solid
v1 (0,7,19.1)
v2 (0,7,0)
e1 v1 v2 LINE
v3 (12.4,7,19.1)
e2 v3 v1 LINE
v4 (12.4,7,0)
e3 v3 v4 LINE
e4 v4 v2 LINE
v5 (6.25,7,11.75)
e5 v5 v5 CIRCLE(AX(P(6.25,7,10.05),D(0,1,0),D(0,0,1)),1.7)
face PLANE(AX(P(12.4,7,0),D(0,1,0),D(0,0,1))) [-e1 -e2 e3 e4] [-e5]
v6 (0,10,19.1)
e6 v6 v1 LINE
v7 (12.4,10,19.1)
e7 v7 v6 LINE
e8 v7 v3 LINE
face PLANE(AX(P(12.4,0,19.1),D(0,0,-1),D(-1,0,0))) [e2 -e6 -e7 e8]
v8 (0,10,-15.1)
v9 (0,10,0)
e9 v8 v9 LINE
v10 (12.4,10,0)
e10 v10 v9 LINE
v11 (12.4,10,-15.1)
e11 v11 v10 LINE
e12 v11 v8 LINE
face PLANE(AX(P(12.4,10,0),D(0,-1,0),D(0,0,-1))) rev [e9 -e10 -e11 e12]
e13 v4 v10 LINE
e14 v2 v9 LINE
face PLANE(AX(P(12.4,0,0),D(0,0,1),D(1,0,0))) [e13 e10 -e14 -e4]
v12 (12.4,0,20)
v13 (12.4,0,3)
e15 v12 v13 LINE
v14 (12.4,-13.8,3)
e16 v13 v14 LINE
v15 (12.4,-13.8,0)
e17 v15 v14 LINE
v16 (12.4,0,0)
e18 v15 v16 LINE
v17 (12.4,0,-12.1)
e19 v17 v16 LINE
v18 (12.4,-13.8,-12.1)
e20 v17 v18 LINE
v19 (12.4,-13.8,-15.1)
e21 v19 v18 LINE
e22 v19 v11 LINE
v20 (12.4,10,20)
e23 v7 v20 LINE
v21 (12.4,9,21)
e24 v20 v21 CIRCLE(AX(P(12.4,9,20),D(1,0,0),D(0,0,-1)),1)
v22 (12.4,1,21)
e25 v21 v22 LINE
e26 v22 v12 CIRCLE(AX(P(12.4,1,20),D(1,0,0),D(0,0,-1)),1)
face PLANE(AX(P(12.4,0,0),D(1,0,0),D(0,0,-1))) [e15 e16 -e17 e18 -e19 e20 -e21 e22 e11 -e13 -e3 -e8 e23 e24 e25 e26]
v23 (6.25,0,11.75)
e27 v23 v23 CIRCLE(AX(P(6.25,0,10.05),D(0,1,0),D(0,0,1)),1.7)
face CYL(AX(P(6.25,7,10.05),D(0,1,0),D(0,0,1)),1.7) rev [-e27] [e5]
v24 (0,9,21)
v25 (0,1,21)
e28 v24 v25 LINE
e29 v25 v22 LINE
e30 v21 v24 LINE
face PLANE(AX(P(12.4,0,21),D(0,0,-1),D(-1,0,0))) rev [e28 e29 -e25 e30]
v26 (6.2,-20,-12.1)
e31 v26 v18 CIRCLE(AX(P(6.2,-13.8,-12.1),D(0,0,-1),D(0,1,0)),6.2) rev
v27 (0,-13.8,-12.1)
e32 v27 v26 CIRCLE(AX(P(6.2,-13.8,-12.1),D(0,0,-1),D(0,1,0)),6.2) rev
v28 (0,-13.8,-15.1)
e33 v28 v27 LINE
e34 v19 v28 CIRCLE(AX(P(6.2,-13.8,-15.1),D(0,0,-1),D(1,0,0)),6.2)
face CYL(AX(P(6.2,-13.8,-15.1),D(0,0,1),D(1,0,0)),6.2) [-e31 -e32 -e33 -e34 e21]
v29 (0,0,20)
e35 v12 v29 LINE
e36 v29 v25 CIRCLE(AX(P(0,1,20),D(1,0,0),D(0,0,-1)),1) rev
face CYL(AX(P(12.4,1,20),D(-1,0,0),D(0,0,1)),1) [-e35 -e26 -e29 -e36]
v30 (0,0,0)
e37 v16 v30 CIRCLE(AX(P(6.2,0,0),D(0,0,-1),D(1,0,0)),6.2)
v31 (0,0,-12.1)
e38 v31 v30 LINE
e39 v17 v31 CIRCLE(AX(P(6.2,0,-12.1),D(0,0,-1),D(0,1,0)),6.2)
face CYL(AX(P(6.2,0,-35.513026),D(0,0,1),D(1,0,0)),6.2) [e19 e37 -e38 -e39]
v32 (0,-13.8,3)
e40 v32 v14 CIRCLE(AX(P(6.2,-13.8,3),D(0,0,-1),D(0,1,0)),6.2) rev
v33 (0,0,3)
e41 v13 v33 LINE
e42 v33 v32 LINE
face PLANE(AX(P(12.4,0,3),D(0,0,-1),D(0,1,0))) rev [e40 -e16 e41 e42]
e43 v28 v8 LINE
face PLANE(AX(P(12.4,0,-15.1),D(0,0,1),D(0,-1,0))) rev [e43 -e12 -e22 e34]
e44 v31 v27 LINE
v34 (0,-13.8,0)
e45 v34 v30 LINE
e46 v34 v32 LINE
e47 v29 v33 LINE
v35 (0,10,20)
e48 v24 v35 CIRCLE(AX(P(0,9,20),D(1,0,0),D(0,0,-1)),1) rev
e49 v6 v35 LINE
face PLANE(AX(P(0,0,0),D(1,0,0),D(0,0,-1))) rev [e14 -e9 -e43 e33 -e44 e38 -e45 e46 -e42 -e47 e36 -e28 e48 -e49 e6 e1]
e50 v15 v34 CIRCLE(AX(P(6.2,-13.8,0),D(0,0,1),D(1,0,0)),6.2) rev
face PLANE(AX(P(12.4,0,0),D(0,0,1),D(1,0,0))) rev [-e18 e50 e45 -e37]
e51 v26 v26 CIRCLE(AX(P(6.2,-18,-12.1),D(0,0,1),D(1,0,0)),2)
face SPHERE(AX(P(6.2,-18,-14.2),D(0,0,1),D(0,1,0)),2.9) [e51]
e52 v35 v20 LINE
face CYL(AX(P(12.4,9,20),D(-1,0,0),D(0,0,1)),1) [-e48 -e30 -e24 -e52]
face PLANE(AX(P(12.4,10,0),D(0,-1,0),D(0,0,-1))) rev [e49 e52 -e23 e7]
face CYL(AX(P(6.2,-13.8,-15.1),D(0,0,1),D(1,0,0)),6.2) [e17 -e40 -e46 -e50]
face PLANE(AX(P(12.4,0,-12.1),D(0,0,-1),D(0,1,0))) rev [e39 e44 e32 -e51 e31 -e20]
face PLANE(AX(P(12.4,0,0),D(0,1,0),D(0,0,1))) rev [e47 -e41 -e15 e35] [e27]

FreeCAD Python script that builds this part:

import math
import FreeCAD as App
import Part
import Sketcher

V = App.Vector
Q = App.Units.Quantity


def edges_at(feature, points):
    """Names of the edges that pass closest to the given points."""
    edges = feature.Shape.Edges
    near = lambda p: min(range(len(edges)), key=lambda i: edges[i].distToShape(Part.Vertex(*p))[0])
    return sorted({f"Edge{near(p) + 1}" for p in points})

doc = App.newDocument("Part")
body = doc.addObject("PartDesign::Body", "Body")

sketch1 = body.newObject("Sketcher::SketchObject", "Sketch")
sketch1.AttachmentSupport = (doc.getObject("YZ_Plane"), [""])
sketch1.MapMode = "FlatFace"
sketch1.addGeometry(Part.LineSegment(V(7, 19.1, 0), V(10, 19.1, 0)), False)
sketch1.addGeometry(Part.LineSegment(V(10, 19.1, 0), V(10, 21, 0)), False)
sketch1.addGeometry(Part.LineSegment(V(10, 21, 0), V(0, 21, 0)), False)
sketch1.addGeometry(Part.LineSegment(V(0, 21, 0), V(0, 3, 0)), False)
sketch1.addGeometry(Part.LineSegment(V(0, 3, 0), V(-20, 3, 0)), False)
sketch1.addGeometry(Part.LineSegment(V(-20, 3, 0), V(-20, 0, 0)), False)
sketch1.addGeometry(Part.LineSegment(V(-20, 0, 0), V(-8, 0, 0)), False)
sketch1.addGeometry(Part.LineSegment(V(-8, 0, 0), V(-8, -12.1, 0)), False)
sketch1.addGeometry(Part.LineSegment(V(-8, -12.1, 0), V(-20, -12.1, 0)), False)
sketch1.addGeometry(Part.LineSegment(V(-20, -12.1, 0), V(-20, -15.1, 0)), False)
sketch1.addGeometry(Part.LineSegment(V(-20, -15.1, 0), V(10, -15.1, 0)), False)
sketch1.addGeometry(Part.LineSegment(V(10, -15.1, 0), V(10, 0, 0)), False)
sketch1.addGeometry(Part.LineSegment(V(10, 0, 0), V(7, 0, 0)), False)
sketch1.addGeometry(Part.LineSegment(V(7, 0, 0), V(7, 19.1, 0)), False)
sketch1.addConstraint(Sketcher.Constraint("Coincident", 0, 2, 1, 1))
sketch1.addConstraint(Sketcher.Constraint("Coincident", 1, 2, 2, 1))
sketch1.addConstraint(Sketcher.Constraint("Coincident", 2, 2, 3, 1))
sketch1.addConstraint(Sketcher.Constraint("Coincident", 3, 2, 4, 1))
sketch1.addConstraint(Sketcher.Constraint("Coincident", 4, 2, 5, 1))
sketch1.addConstraint(Sketcher.Constraint("Coincident", 5, 2, 6, 1))
sketch1.addConstraint(Sketcher.Constraint("Coincident", 6, 2, 7, 1))
sketch1.addConstraint(Sketcher.Constraint("Coincident", 7, 2, 8, 1))
sketch1.addConstraint(Sketcher.Constraint("Coincident", 8, 2, 9, 1))
sketch1.addConstraint(Sketcher.Constraint("Coincident", 9, 2, 10, 1))
sketch1.addConstraint(Sketcher.Constraint("Coincident", 10, 2, 11, 1))
sketch1.addConstraint(Sketcher.Constraint("Coincident", 11, 2, 12, 1))
sketch1.addConstraint(Sketcher.Constraint("Coincident", 12, 2, 13, 1))
sketch1.addConstraint(Sketcher.Constraint("Coincident", 13, 2, 0, 1))
sketch1.addConstraint(Sketcher.Constraint("Horizontal", 0))
sketch1.addConstraint(Sketcher.Constraint("Vertical", 1))
sketch1.addConstraint(Sketcher.Constraint("Horizontal", 2))
sketch1.addConstraint(Sketcher.Constraint("Vertical", 3))
sketch1.addConstraint(Sketcher.Constraint("Horizontal", 4))
sketch1.addConstraint(Sketcher.Constraint("Vertical", 5))
sketch1.addConstraint(Sketcher.Constraint("Horizontal", 6))
sketch1.addConstraint(Sketcher.Constraint("Vertical", 7))
sketch1.addConstraint(Sketcher.Constraint("Horizontal", 8))
sketch1.addConstraint(Sketcher.Constraint("Vertical", 9))
sketch1.addConstraint(Sketcher.Constraint("Horizontal", 10))
sketch1.addConstraint(Sketcher.Constraint("Vertical", 11))
sketch1.addConstraint(Sketcher.Constraint("Horizontal", 12))
sketch1.addConstraint(Sketcher.Constraint("Vertical", 13))
sketch1.addConstraint(Sketcher.Constraint("PointOnObject", 2, 2, -2))
sketch1.addConstraint(Sketcher.Constraint("PointOnObject", 5, 2, -1))
sketch1.addConstraint(Sketcher.Constraint("PointOnObject", 11, 2, -1))
sketch1.addConstraint(Sketcher.Constraint("Vertical", 5, 2, 8, 2))
sketch1.addConstraint(Sketcher.Constraint("Vertical", 1, 2, 10, 2))
sketch1.addConstraint(Sketcher.Constraint("Equal", 12, 5))
sketch1.addConstraint(Sketcher.Constraint("Equal", 5, 9))
sketch1.addConstraint(Sketcher.Constraint("DistanceX", 0, 1, 0, 2, Q("3 mm")))
sketch1.addConstraint(Sketcher.Constraint("DistanceX", 2, 2, 2, 1, Q("10 mm")))
sketch1.addConstraint(Sketcher.Constraint("DistanceX", 4, 2, 4, 1, Q("20 mm")))
sketch1.addConstraint(Sketcher.Constraint("DistanceX", 6, 1, 6, 2, Q("12 mm")))
sketch1.addConstraint(Sketcher.Constraint("DistanceY", 3, 2, 3, 1, Q("18 mm")))
sketch1.addConstraint(Sketcher.Constraint("DistanceY", 1, 1, 1, 2, Q("1.9 mm")))
sketch1.addConstraint(Sketcher.Constraint("DistanceY", 7, 2, 7, 1, Q("12.1 mm")))
pad1 = body.newObject("PartDesign::Pad", "Pad")
pad1.Profile = sketch1
pad1.Length = 12.4

sketch2 = body.newObject("Sketcher::SketchObject", "Sketch001")
sketch2.AttachmentSupport = (doc.getObject("XY_Plane"), [""])
sketch2.MapMode = "FlatFace"
sketch2.addGeometry(Part.LineSegment(V(0, 0, 0), V(-4.3, 0, 0)), False)
sketch2.addGeometry(Part.LineSegment(V(-4.3, 0, 0), V(-4.3, -10.2, 0)), False)
sketch2.addGeometry(Part.LineSegment(V(-4.3, -10.2, 0), V(16.8, -10.2, 0)), False)
sketch2.addGeometry(Part.LineSegment(V(16.8, -10.2, 0), V(16.8, 0, 0)), False)
sketch2.addGeometry(Part.LineSegment(V(16.8, 0, 0), V(12.4, 0, 0)), False)
sketch2.addGeometry(Part.ArcOfCircle(Part.Circle(V(6.2, 0, 0), V(0, 0, 1), 6.2), math.radians(180), math.radians(360)), False)
sketch2.addConstraint(Sketcher.Constraint("Coincident", 0, 2, 1, 1))
sketch2.addConstraint(Sketcher.Constraint("Coincident", 1, 2, 2, 1))
sketch2.addConstraint(Sketcher.Constraint("Coincident", 2, 2, 3, 1))
sketch2.addConstraint(Sketcher.Constraint("Coincident", 3, 2, 4, 1))
sketch2.addConstraint(Sketcher.Constraint("Coincident", 4, 2, 5, 2))
sketch2.addConstraint(Sketcher.Constraint("Coincident", 5, 1, 0, 1))
sketch2.addConstraint(Sketcher.Constraint("Horizontal", 0))
sketch2.addConstraint(Sketcher.Constraint("Vertical", 1))
sketch2.addConstraint(Sketcher.Constraint("Horizontal", 2))
sketch2.addConstraint(Sketcher.Constraint("Vertical", 3))
sketch2.addConstraint(Sketcher.Constraint("Horizontal", 4))
sketch2.addConstraint(Sketcher.Constraint("Coincident", 5, 1, -1, 1))
sketch2.addConstraint(Sketcher.Constraint("PointOnObject", 5, 3, -1))
sketch2.addConstraint(Sketcher.Constraint("PointOnObject", 3, 2, -1))
sketch2.addConstraint(Sketcher.Constraint("Radius", 5, Q("6.2 mm")))
sketch2.addConstraint(Sketcher.Constraint("DistanceY", 1, 2, 1, 1, Q("10.158248 mm")))
sketch2.addConstraint(Sketcher.Constraint("DistanceX", 0, 2, 0, 1, Q("4.310237 mm")))
sketch2.addConstraint(Sketcher.Constraint("DistanceX", 2, 1, 2, 2, Q("21.094544 mm")))
pocket1 = body.newObject("PartDesign::Pocket", "Pocket")
pocket1.Profile = sketch2
pocket1.Length = 12.1

sketch3 = body.newObject("Sketcher::SketchObject", "Sketch002")
sketch3.AttachmentSupport = (doc.getObject("XY_Plane"), [""])
sketch3.MapMode = "FlatFace"
sketch3.addGeometry(Part.LineSegment(V(0, -13.8, 0), V(-4.5, -13.8, 0)), False)
sketch3.addGeometry(Part.LineSegment(V(-4.5, -13.8, 0), V(-4.5, -23, 0)), False)
sketch3.addGeometry(Part.LineSegment(V(-4.5, -23, 0), V(17.5, -23, 0)), False)
sketch3.addGeometry(Part.LineSegment(V(17.5, -23, 0), V(17.5, -13.8, 0)), False)
sketch3.addGeometry(Part.LineSegment(V(17.5, -13.8, 0), V(12.4, -13.8, 0)), False)
sketch3.addGeometry(Part.ArcOfCircle(Part.Circle(V(6.2, -13.8, 0), V(0, 0, 1), 6.2), math.radians(180), math.radians(360)), False)
sketch3.addConstraint(Sketcher.Constraint("Coincident", 0, 2, 1, 1))
sketch3.addConstraint(Sketcher.Constraint("Coincident", 1, 2, 2, 1))
sketch3.addConstraint(Sketcher.Constraint("Coincident", 2, 2, 3, 1))
sketch3.addConstraint(Sketcher.Constraint("Coincident", 3, 2, 4, 1))
sketch3.addConstraint(Sketcher.Constraint("Coincident", 4, 2, 5, 2))
sketch3.addConstraint(Sketcher.Constraint("Coincident", 5, 1, 0, 1))
sketch3.addConstraint(Sketcher.Constraint("Horizontal", 0))
sketch3.addConstraint(Sketcher.Constraint("Vertical", 1))
sketch3.addConstraint(Sketcher.Constraint("Horizontal", 2))
sketch3.addConstraint(Sketcher.Constraint("Vertical", 3))
sketch3.addConstraint(Sketcher.Constraint("Horizontal", 4))
sketch3.addConstraint(Sketcher.Constraint("PointOnObject", 5, 1, -2))
sketch3.addConstraint(Sketcher.Constraint("Horizontal", 5, 3, 0, 2))
sketch3.addConstraint(Sketcher.Constraint("Horizontal", 0, 2, 3, 2))
sketch3.addConstraint(Sketcher.Constraint("Radius", 5, Q("6.2 mm")))
sketch3.addConstraint(Sketcher.Constraint("DistanceY", 5, 3, -1, 1, Q("13.8 mm")))
sketch3.addConstraint(Sketcher.Constraint("DistanceX", 0, 2, 0, 1, Q("4.529189 mm")))
sketch3.addConstraint(Sketcher.Constraint("DistanceX", 2, 1, 2, 2, Q("21.986481 mm")))
sketch3.addConstraint(Sketcher.Constraint("DistanceY", 1, 2, 1, 1, Q("9.232738 mm")))
pocket2 = body.newObject("PartDesign::Pocket", "Pocket001")
pocket2.Profile = sketch3
pocket2.Type = "ThroughAll"
pocket2.Midplane = True

sketch4 = body.newObject("Sketcher::SketchObject", "Sketch003")
sketch4.AttachmentSupport = (doc.getObject("XZ_Plane"), [""])
sketch4.MapMode = "FlatFace"
sketch4.AttachmentOffset = App.Placement(V(0, 0, -7), App.Rotation())
sketch4.addGeometry(Part.Circle(V(6.2, 10.1, 0), V(0, 0, 1), 1.7), False)
sketch4.addConstraint(Sketcher.Constraint("Diameter", 0, Q("3.4 mm")))
sketch4.addConstraint(Sketcher.Constraint("DistanceX", -1, 1, 0, 3, Q("6.25 mm")))
sketch4.addConstraint(Sketcher.Constraint("DistanceY", -1, 1, 0, 3, Q("10.05 mm")))
doc.recompute()
hole = body.newObject("PartDesign::Hole", "Hole")
hole.Profile = sketch4
hole.ThreadType = "None"
hole.Diameter = 3.4
hole.DepthType = "Dimension"
hole.Depth = 10
hole.DrillPoint = "Angled"
hole.DrillPointAngle = 118
hole.Reversed = True
doc.recompute()

fillet = body.newObject("PartDesign::Fillet", "Fillet")
fillet.Base = (hole, edges_at(hole, [(6.2, 0, 21), (6.2, 10, 21)]))
fillet.Radius = 1

sketch5 = body.newObject("Sketcher::SketchObject", "Sketch004")
sketch5.AttachmentSupport = (doc.getObject("YZ_Plane"), [""])
sketch5.MapMode = "FlatFace"
sketch5.AttachmentOffset = App.Placement(V(0, 0, 6.2), App.Rotation())
sketch5.addGeometry(Part.LineSegment(V(-20, -12.1, 0), V(-18, -12.1, 0)), False)
sketch5.addGeometry(Part.LineSegment(V(-18, -12.1, 0), V(-18, -11.3, 0)), False)
sketch5.addGeometry(Part.ArcOfCircle(Part.Circle(V(-18, -14.2, 0), V(0, 0, 1), 2.9), math.radians(90), math.radians(134)), False)
sketch5.addGeometry(Part.LineSegment(V(-18, -11.3, 0), V(-18, -14.2, 0)), True)
sketch5.addConstraint(Sketcher.Constraint("Coincident", 0, 2, 1, 1))
sketch5.addConstraint(Sketcher.Constraint("Coincident", 1, 2, 2, 1))
sketch5.addConstraint(Sketcher.Constraint("Coincident", 2, 2, 0, 1))
sketch5.addConstraint(Sketcher.Constraint("Horizontal", 0))
sketch5.addConstraint(Sketcher.Constraint("Vertical", 1))
sketch5.addConstraint(Sketcher.Constraint("Vertical", 3))
sketch5.addConstraint(Sketcher.Constraint("Coincident", 3, 1, 1, 2))
sketch5.addConstraint(Sketcher.Constraint("Coincident", 3, 2, 2, 3))
sketch5.addConstraint(Sketcher.Constraint("Radius", 2, Q("2.9 mm")))
sketch5.addConstraint(Sketcher.Constraint("DistanceX", 0, 1, 0, 2, Q("2 mm")))
sketch5.addConstraint(Sketcher.Constraint("DistanceX", 2, 3, -1, 1, Q("18 mm")))
sketch5.addConstraint(Sketcher.Constraint("DistanceY", 2, 3, -1, 1, Q("14.2 mm")))
revolution = body.newObject("PartDesign::Revolution", "Revolution")
revolution.Profile = sketch5
revolution.ReferenceAxis = (sketch5, ["Axis0"])
revolution.Angle = 360

doc.recompute()
